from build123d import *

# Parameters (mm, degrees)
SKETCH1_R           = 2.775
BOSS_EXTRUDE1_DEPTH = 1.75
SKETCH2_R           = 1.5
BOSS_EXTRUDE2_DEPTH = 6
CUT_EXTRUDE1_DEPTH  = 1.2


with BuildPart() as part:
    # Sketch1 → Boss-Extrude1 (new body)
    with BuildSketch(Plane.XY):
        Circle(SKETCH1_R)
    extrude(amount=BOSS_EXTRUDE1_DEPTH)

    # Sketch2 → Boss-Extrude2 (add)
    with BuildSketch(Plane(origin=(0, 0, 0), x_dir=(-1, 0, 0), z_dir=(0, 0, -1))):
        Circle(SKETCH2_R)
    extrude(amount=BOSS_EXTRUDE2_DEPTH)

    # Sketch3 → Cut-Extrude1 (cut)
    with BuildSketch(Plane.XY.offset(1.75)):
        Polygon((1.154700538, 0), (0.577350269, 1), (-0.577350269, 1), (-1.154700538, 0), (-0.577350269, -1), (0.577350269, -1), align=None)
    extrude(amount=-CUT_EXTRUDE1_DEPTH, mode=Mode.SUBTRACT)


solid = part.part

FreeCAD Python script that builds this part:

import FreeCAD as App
import Part
import Sketcher
Q = App.Units.Quantity

doc = App.newDocument("Part")
params = doc.addObject("Spreadsheet::Sheet", "Params")
for row, (alias, value) in enumerate([
    ("sketch1_diameter", "5.55 mm"),
    ("pad1_length", "1.75 mm"),
    ("sketch2_diameter", "3 mm"),
    ("pad2_length", "6 mm"),
    ("pocket1_length", "1.2 mm"),
], start=1):
    params.set(f"A{row}", alias)
    params.set(f"B{row}", "=" + value)
    params.setAlias(f"B{row}", alias)

body = doc.addObject("PartDesign::Body", "Body")

# Sketch on XY plane
sketch1 = doc.addObject("Sketcher::SketchObject", "Sketch")
body.addObject(sketch1)
sketch1.AttachmentSupport = (doc.XY_Plane, [""])
sketch1.MapMode = "FlatFace"
sketch1.addGeometry(Part.Circle(App.Vector(0, 0, 0), App.Vector(0, 0, 1), 2.775), False)
sketch1.addConstraint([
    Sketcher.Constraint("Coincident", 0, 3, -1, 1),
    Sketcher.Constraint("Diameter", 0, 5.55),
])
sketch1.setExpression("Constraints[1]", "Params.sketch1_diameter")
pad1 = doc.addObject("PartDesign::Pad", "Pad")
body.addObject(pad1)
pad1.Profile = sketch1
pad1.setExpression("Length", "Params.pad1_length")

# Sketch on XY plane
sketch2 = doc.addObject("Sketcher::SketchObject", "Sketch001")
body.addObject(sketch2)
sketch2.AttachmentSupport = (doc.XY_Plane, [""])
sketch2.MapMode = "FlatFace"
sketch2.addGeometry(Part.Circle(App.Vector(0, 0, 0), App.Vector(0, 0, 1), 1.5), False)
sketch2.addConstraint([
    Sketcher.Constraint("Coincident", 0, 3, -1, 1),
    Sketcher.Constraint("Diameter", 0, 3.0),
])
sketch2.setExpression("Constraints[1]", "Params.sketch2_diameter")
pad2 = doc.addObject("PartDesign::Pad", "Pad001")
body.addObject(pad2)
pad2.Profile = sketch2
pad2.setExpression("Length", "Params.pad2_length")
pad2.Reversed = True

# Sketch on XY plane
sketch3 = doc.addObject("Sketcher::SketchObject", "Sketch002")
body.addObject(sketch3)
sketch3.AttachmentSupport = (doc.XY_Plane, [""])
sketch3.MapMode = "FlatFace"
sketch3.AttachmentOffset = App.Placement(App.Vector(0, 0, 1.75), App.Rotation())
sketch3.addGeometry([
    Part.LineSegment(App.Vector(1.154701, 0, 0), App.Vector(0.57735, 1, 0)),  # 0
    Part.LineSegment(App.Vector(0.57735, 1, 0), App.Vector(-0.57735, 1, 0)),  # 1
    Part.LineSegment(App.Vector(-0.57735, 1, 0), App.Vector(-1.154701, 0, 0)),  # 2
    Part.LineSegment(App.Vector(-1.154701, 0, 0), App.Vector(-0.57735, -1, 0)),  # 3
    Part.LineSegment(App.Vector(-0.57735, -1, 0), App.Vector(0.57735, -1, 0)),  # 4
    Part.LineSegment(App.Vector(0.57735, -1, 0), App.Vector(1.154701, 0, 0)),  # 5
], False)
sketch3.addConstraint([
    Sketcher.Constraint("Coincident", 0, 2, 1, 1),
    Sketcher.Constraint("Coincident", 1, 2, 2, 1),
    Sketcher.Constraint("Coincident", 2, 2, 3, 1),
    Sketcher.Constraint("Coincident", 3, 2, 4, 1),
    Sketcher.Constraint("Coincident", 4, 2, 5, 1),
    Sketcher.Constraint("Coincident", 5, 2, 0, 1),
    Sketcher.Constraint("Horizontal", 1),
    Sketcher.Constraint("Horizontal", 4),
    Sketcher.Constraint("Symmetric", 0, 2, 3, 2, -1, 1),
    Sketcher.Constraint("Symmetric", 2, 2, 5, 2, -1, 1),
    Sketcher.Constraint("PointOnObject", 2, 2, -1),
    Sketcher.Constraint("Parallel", 2, 5),
    Sketcher.Constraint("Vertical", 1, 2, 3, 2),
    Sketcher.Constraint("Angle", 0, Q("120 deg")),
    Sketcher.Constraint("DistanceY", -1, 1, 0, 2, 1.0),
    Sketcher.Constraint("DistanceX", 1, 2, 1, 1, 1.154701),
])
pocket1 = doc.addObject("PartDesign::Pocket", "Pocket")
body.addObject(pocket1)
pocket1.Profile = sketch3
pocket1.setExpression("Length", "Params.pocket1_length")

doc.recompute()
